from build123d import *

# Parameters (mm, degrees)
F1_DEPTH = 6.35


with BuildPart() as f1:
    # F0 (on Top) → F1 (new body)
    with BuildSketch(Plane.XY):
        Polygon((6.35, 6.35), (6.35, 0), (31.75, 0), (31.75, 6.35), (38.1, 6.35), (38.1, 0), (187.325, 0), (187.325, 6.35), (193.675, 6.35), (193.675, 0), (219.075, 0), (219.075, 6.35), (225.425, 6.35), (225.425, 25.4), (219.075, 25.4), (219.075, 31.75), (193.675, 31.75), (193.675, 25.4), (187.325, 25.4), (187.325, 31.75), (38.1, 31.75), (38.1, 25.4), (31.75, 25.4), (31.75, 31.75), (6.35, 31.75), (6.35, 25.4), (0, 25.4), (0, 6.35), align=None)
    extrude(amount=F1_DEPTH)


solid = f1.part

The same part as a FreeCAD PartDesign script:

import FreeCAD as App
import Part
import Sketcher

V = App.Vector
Q = App.Units.Quantity


def add_polygon(sketch, points):
    """Adds a closed chain of lines whose ends are joined by coincident constraints."""
    first, n = sketch.GeometryCount, len(points)
    for a, b in zip(points, points[1:] + points[:1]):
        sketch.addGeometry(Part.LineSegment(App.Vector(*a, 0), App.Vector(*b, 0)), False)
    for i in range(n):
        sketch.addConstraint(Sketcher.Constraint("Coincident", first + i, 2, first + (i + 1) % n, 1))

doc = App.newDocument("Part")
params = doc.addObject("Spreadsheet::Sheet", "Params")
for row, (alias, value) in enumerate([
    ("sketch1_width", "1 in"),
    ("sketch1_width2", "0.25 in"),
    ("sketch1_width3", "5.875 in"),
    ("pad1_length", "0.25 in"),
], start=1):
    params.set(f"A{row}", alias)
    params.set(f"B{row}", "=" + value)
    params.setAlias(f"B{row}", alias)

body = doc.addObject("PartDesign::Body", "Body")

# Sketch on XY plane
sketch1 = body.newObject("Sketcher::SketchObject", "Sketch")
sketch1.AttachmentSupport = (doc.getObject("XY_Plane"), [""])
sketch1.MapMode = "FlatFace"
add_polygon(sketch1, [(6.35, 6.35), (6.35, 0), (31.75, 0), (31.75, 6.35), (38.1, 6.35), (38.1, 0), (187.325, 0), (187.325, 6.35), (193.675, 6.35), (193.675, 0), (219.075, 0), (219.075, 6.35), (225.425, 6.35), (225.425, 25.4), (219.075, 25.4), (219.075, 31.75), (193.675, 31.75), (193.675, 25.4), (187.325, 25.4), (187.325, 31.75), (38.1, 31.75), (38.1, 25.4), (31.75, 25.4), (31.75, 31.75), (6.35, 31.75), (6.35, 25.4), (0, 25.4), (0, 6.35)])  # lines 0-27
sketch1.addConstraint([
    Sketcher.Constraint("Vertical", 0),
    Sketcher.Constraint("Horizontal", 1),
    Sketcher.Constraint("Vertical", 2),
    Sketcher.Constraint("Horizontal", 3),
    Sketcher.Constraint("Vertical", 4),
    Sketcher.Constraint("Horizontal", 5),
    Sketcher.Constraint("Vertical", 6),
    Sketcher.Constraint("Horizontal", 7),
    Sketcher.Constraint("Vertical", 8),
    Sketcher.Constraint("Horizontal", 9),
    Sketcher.Constraint("Vertical", 10),
    Sketcher.Constraint("Horizontal", 11),
    Sketcher.Constraint("Vertical", 12),
    Sketcher.Constraint("Horizontal", 13),
    Sketcher.Constraint("Vertical", 14),
    Sketcher.Constraint("Horizontal", 15),
    Sketcher.Constraint("Vertical", 16),
    Sketcher.Constraint("Horizontal", 17),
    Sketcher.Constraint("Vertical", 18),
    Sketcher.Constraint("Horizontal", 19),
    Sketcher.Constraint("Vertical", 20),
    Sketcher.Constraint("Horizontal", 21),
    Sketcher.Constraint("Vertical", 22),
    Sketcher.Constraint("Horizontal", 23),
    Sketcher.Constraint("Vertical", 24),
    Sketcher.Constraint("Horizontal", 25),
    Sketcher.Constraint("Vertical", 26),
    Sketcher.Constraint("Horizontal", 27),
    Sketcher.Constraint("PointOnObject", 0, 2, -1),
    Sketcher.Constraint("PointOnObject", 4, 2, -1),
    Sketcher.Constraint("PointOnObject", 8, 2, -1),
    Sketcher.Constraint("PointOnObject", 25, 2, -2),
    Sketcher.Constraint("Horizontal", 3, 2, 6, 2),
    Sketcher.Constraint("Horizontal", 7, 2, 10, 2),
    Sketcher.Constraint("Horizontal", 13, 2, 16, 2),
    Sketcher.Constraint("Horizontal", 15, 2, 18, 2),
    Sketcher.Constraint("Horizontal", 17, 2, 20, 2),
    Sketcher.Constraint("Horizontal", 19, 2, 22, 2),
    Sketcher.Constraint("Horizontal", 21, 2, 24, 2),
    Sketcher.Constraint("Horizontal", 11, 2, 26, 2),
    Sketcher.Constraint("Vertical", 10, 2, 13, 2),
    Sketcher.Constraint("Vertical", 8, 2, 15, 2),
    Sketcher.Constraint("Vertical", 6, 2, 17, 2),
    Sketcher.Constraint("Vertical", 4, 2, 19, 2),
    Sketcher.Constraint("Vertical", 2, 2, 21, 2),
    Sketcher.Constraint("Vertical", 0, 2, 23, 2),
    Sketcher.Constraint("Equal", 3, 7),
    Sketcher.Constraint("Equal", 1, 9),
    Sketcher.Constraint("Equal", 7, 11),
    Sketcher.Constraint("Equal", 21, 25),
    Sketcher.Constraint("Equal", 27, 0),
    Sketcher.Constraint("Equal", 10, 14),
    Sketcher.Constraint("DistanceX", 1, 1, 1, 2, Q("1 in")),
    Sketcher.Constraint("DistanceY", -1, 1, 12, 2, Q("1 in")),
    Sketcher.Constraint("DistanceX", 3, 1, 3, 2, Q("0.25 in")),
    Sketcher.Constraint("DistanceX", 5, 1, 5, 2, Q("5.875 in")),
])
sketch1.setExpression("Constraints[80]", "Params.sketch1_width")
sketch1.setExpression("Constraints[82]", "Params.sketch1_width2")
sketch1.setExpression("Constraints[83]", "Params.sketch1_width3")
pad1 = body.newObject("PartDesign::Pad", "Pad")
pad1.Profile = sketch1
pad1.setExpression("Length", "Params.pad1_length")

doc.recompute()
